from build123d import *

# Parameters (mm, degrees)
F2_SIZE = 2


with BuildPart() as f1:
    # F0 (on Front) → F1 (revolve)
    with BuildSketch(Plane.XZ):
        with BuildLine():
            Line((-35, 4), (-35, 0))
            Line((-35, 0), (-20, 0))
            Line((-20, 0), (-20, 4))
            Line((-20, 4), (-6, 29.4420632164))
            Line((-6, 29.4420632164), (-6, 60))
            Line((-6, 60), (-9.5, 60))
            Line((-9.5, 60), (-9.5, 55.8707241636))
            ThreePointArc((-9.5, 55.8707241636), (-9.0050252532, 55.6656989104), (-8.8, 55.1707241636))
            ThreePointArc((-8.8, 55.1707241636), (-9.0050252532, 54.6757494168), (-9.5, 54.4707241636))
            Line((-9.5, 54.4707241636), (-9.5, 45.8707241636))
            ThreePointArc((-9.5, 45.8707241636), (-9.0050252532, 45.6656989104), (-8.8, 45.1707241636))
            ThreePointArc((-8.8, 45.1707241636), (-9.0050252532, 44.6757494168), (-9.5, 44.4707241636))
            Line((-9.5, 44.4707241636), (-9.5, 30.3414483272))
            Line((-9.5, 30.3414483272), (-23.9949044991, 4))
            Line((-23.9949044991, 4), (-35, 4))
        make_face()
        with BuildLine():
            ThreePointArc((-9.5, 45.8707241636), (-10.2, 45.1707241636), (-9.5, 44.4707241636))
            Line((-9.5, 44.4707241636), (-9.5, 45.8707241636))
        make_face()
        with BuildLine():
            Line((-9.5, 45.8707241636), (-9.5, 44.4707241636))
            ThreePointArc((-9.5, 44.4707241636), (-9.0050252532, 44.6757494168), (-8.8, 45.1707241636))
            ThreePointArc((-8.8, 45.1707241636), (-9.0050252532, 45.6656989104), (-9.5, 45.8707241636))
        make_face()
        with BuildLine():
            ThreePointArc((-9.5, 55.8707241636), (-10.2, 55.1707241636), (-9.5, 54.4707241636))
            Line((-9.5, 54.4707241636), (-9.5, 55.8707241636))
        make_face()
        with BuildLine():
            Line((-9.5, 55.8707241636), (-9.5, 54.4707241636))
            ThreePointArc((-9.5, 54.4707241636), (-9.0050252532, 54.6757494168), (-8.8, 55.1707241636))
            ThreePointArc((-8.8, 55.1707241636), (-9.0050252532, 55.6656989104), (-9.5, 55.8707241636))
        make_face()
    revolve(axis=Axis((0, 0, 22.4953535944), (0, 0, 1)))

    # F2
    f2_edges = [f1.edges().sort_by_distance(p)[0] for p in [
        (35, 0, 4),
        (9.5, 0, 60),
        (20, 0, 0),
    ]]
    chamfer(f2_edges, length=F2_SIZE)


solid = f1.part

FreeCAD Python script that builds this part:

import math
import FreeCAD as App
import Part
import Sketcher


def edges_at(feature, points):
    """Names of the edges that pass closest to the given points."""
    edges = feature.Shape.Edges
    near = lambda p: min(range(len(edges)), key=lambda i: edges[i].distToShape(Part.Vertex(*p))[0])
    return sorted({f"Edge{near(p) + 1}" for p in points})

doc = App.newDocument("Part")
body = doc.addObject("PartDesign::Body", "Body")

# Sketch on XZ plane
sketch1 = body.newObject("Sketcher::SketchObject", "Sketch")
sketch1.AttachmentSupport = (doc.getObject("XZ_Plane"), [""])
sketch1.MapMode = "FlatFace"
sketch1.addGeometry(Part.LineSegment(App.Vector(-35, 4, 0), App.Vector(-35, 0, 0)), False)
sketch1.addGeometry(Part.LineSegment(App.Vector(-35, 0, 0), App.Vector(-20, 0, 0)), False)
sketch1.addGeometry(Part.LineSegment(App.Vector(-20, 0, 0), App.Vector(-20, 4, 0)), False)
sketch1.addGeometry(Part.LineSegment(App.Vector(-20, 4, 0), App.Vector(-6, 29.4, 0)), False)
sketch1.addGeometry(Part.LineSegment(App.Vector(-6, 29.4, 0), App.Vector(-6, 60, 0)), False)
sketch1.addGeometry(Part.LineSegment(App.Vector(-6, 60, 0), App.Vector(-9.5, 60, 0)), False)
sketch1.addGeometry(Part.LineSegment(App.Vector(-9.5, 60, 0), App.Vector(-9.5, 55.9, 0)), False)
sketch1.addGeometry(Part.ArcOfCircle(Part.Circle(App.Vector(-9.5, 55.2, 0), App.Vector(0, 0, 1), 0.7), math.radians(90), math.radians(270)), False)
sketch1.addGeometry(Part.LineSegment(App.Vector(-9.5, 54.5, 0), App.Vector(-9.5, 45.9, 0)), False)
sketch1.addGeometry(Part.ArcOfCircle(Part.Circle(App.Vector(-9.5, 45.2, 0), App.Vector(0, 0, 1), 0.7), math.radians(90), math.radians(270)), False)
sketch1.addGeometry(Part.LineSegment(App.Vector(-9.5, 44.5, 0), App.Vector(-9.5, 30.3, 0)), False)
sketch1.addGeometry(Part.LineSegment(App.Vector(-9.5, 30.3, 0), App.Vector(-24, 4, 0)), False)
sketch1.addGeometry(Part.LineSegment(App.Vector(-24, 4, 0), App.Vector(-35, 4, 0)), False)
sketch1.addConstraint(Sketcher.Constraint("Coincident", 0, 2, 1, 1))
sketch1.addConstraint(Sketcher.Constraint("Coincident", 1, 2, 2, 1))
sketch1.addConstraint(Sketcher.Constraint("Coincident", 2, 2, 3, 1))
sketch1.addConstraint(Sketcher.Constraint("Coincident", 3, 2, 4, 1))
sketch1.addConstraint(Sketcher.Constraint("Coincident", 4, 2, 5, 1))
sketch1.addConstraint(Sketcher.Constraint("Coincident", 5, 2, 6, 1))
sketch1.addConstraint(Sketcher.Constraint("Coincident", 6, 2, 7, 1))
sketch1.addConstraint(Sketcher.Constraint("Coincident", 7, 2, 8, 1))
sketch1.addConstraint(Sketcher.Constraint("Coincident", 8, 2, 9, 1))
sketch1.addConstraint(Sketcher.Constraint("Coincident", 9, 2, 10, 1))
sketch1.addConstraint(Sketcher.Constraint("Coincident", 10, 2, 11, 1))
sketch1.addConstraint(Sketcher.Constraint("Coincident", 11, 2, 12, 1))
sketch1.addConstraint(Sketcher.Constraint("Coincident", 12, 2, 0, 1))
sketch1.addConstraint(Sketcher.Constraint("Vertical", 0))
sketch1.addConstraint(Sketcher.Constraint("Horizontal", 1))
sketch1.addConstraint(Sketcher.Constraint("Vertical", 2))
sketch1.addConstraint(Sketcher.Constraint("Vertical", 4))
sketch1.addConstraint(Sketcher.Constraint("Horizontal", 5))
sketch1.addConstraint(Sketcher.Constraint("Vertical", 6))
sketch1.addConstraint(Sketcher.Constraint("Vertical", 8))
sketch1.addConstraint(Sketcher.Constraint("Vertical", 10))
sketch1.addConstraint(Sketcher.Constraint("Horizontal", 12))
sketch1.addConstraint(Sketcher.Constraint("Equal", 7, 9))
sketch1.addConstraint(Sketcher.Constraint("PointOnObject", 0, 2, -1))
sketch1.addConstraint(Sketcher.Constraint("Parallel", 3, 11))
sketch1.addConstraint(Sketcher.Constraint("Horizontal", 2, 2, 11, 2))
sketch1.addConstraint(Sketcher.Constraint("Vertical", 7, 3, 9, 3))
sketch1.addConstraint(Sketcher.Constraint("Vertical", 9, 3, 5, 2))
sketch1.addConstraint(Sketcher.Constraint("Vertical", 6, 2, 7, 2))
sketch1.addConstraint(Sketcher.Constraint("Vertical", 8, 2, 9, 2))
sketch1.addConstraint(Sketcher.Constraint("Radius", 7, 0.7))
sketch1.addConstraint(Sketcher.Constraint("DistanceX", 1, 1, 1, 2, 15.0))
sketch1.addConstraint(Sketcher.Constraint("DistanceY", 0, 2, 0, 1, 4.0))
sketch1.addConstraint(Sketcher.Constraint("DistanceX", 5, 2, 5, 1, 3.5))
sketch1.addConstraint(Sketcher.Constraint("DistanceY", 8, 2, 8, 1, 8.6))
sketch1.addConstraint(Sketcher.Constraint("DistanceX", 0, 2, -1, 1, 35.0))
sketch1.addConstraint(Sketcher.Constraint("DistanceX", 3, 2, -1, 1, 6.0))
sketch1.addConstraint(Sketcher.Constraint("DistanceY", -1, 1, 4, 2, 60.0))
sketch1.addConstraint(Sketcher.Constraint("DistanceX", 12, 2, 12, 1, 11.005096))
sketch1.addConstraint(Sketcher.Constraint("DistanceY", 4, 1, 4, 2, 30.557937))
sketch1.addConstraint(Sketcher.Constraint("DistanceY", 6, 2, 6, 1, 4.129276))
revolution = body.newObject("PartDesign::Revolution", "Revolution")
revolution.Profile = sketch1
revolution.ReferenceAxis = (sketch1, ["V_Axis"])
revolution.Angle = 360
doc.recompute()

chamfer = body.newObject("PartDesign::Chamfer", "Chamfer")
chamfer.Base = (revolution, edges_at(revolution, [(35, 0, 4), (9.5, 0, 60), (20, 0, 0)]))
chamfer.Size = 2

doc.recompute()
